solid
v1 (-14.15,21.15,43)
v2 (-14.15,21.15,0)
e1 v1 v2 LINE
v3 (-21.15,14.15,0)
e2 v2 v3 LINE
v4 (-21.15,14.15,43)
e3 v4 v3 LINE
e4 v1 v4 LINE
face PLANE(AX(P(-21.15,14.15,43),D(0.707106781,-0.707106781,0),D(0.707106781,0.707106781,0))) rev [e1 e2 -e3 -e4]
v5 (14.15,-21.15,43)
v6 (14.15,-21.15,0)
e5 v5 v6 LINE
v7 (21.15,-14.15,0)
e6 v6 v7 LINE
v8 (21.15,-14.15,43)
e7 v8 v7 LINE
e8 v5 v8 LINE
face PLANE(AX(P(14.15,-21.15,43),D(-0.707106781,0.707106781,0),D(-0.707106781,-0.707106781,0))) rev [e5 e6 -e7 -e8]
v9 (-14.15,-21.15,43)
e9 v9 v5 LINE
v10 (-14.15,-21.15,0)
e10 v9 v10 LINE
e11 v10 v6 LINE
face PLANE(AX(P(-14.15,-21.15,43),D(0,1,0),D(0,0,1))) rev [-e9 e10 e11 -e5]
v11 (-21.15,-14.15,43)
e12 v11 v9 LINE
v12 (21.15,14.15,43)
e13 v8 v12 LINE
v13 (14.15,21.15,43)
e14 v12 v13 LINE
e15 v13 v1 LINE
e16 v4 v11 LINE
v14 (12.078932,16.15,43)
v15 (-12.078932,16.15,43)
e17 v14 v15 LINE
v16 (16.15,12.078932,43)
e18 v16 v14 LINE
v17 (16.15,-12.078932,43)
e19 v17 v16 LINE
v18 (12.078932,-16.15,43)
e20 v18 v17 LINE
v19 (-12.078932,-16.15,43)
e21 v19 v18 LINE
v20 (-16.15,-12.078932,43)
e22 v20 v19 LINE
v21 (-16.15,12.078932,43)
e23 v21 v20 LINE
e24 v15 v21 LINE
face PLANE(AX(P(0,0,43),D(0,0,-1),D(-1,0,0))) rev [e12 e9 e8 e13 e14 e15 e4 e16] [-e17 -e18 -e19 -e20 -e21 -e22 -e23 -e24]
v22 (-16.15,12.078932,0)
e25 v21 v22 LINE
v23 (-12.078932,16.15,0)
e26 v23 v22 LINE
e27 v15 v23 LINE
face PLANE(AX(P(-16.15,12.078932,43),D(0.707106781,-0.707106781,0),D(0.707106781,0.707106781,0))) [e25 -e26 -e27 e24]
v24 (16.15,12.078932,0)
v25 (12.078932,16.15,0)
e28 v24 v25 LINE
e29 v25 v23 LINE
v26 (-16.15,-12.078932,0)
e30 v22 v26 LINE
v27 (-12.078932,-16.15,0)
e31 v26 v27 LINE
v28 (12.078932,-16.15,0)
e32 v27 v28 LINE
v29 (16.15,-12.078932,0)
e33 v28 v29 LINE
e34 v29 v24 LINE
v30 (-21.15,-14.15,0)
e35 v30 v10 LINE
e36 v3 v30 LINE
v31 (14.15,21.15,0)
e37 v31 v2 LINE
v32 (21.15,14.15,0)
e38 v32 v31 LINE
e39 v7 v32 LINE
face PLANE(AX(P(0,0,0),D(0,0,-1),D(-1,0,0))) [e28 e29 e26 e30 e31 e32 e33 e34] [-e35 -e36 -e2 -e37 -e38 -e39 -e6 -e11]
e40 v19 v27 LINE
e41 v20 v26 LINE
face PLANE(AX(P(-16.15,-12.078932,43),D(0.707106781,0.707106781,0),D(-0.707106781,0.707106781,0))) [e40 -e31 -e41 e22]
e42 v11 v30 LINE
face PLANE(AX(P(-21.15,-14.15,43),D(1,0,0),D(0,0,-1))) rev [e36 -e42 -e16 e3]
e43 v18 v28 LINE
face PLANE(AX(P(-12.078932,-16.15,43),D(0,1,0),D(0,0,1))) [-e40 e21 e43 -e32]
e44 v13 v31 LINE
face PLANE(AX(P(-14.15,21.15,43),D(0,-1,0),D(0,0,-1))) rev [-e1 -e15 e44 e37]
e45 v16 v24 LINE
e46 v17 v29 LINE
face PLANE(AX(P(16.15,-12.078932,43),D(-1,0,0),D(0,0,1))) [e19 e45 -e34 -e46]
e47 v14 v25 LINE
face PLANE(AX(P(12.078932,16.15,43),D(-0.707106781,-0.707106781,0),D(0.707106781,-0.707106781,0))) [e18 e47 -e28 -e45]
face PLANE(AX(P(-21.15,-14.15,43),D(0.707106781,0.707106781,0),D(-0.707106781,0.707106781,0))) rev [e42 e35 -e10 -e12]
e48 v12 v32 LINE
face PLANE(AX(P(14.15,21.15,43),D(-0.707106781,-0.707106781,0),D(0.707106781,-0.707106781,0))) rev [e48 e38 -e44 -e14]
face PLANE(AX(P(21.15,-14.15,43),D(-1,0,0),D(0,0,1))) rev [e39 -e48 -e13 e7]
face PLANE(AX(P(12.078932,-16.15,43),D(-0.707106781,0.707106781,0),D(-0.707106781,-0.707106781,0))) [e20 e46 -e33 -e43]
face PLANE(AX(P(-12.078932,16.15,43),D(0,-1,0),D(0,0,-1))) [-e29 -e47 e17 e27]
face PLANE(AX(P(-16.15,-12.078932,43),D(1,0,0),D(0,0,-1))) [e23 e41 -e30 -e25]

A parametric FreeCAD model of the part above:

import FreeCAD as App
import Part
import Sketcher
Q = App.Units.Quantity


def add_polygon(sketch, points):
    """Adds a closed chain of lines whose ends are joined by coincident constraints."""
    first, n = sketch.GeometryCount, len(points)
    for a, b in zip(points, points[1:] + points[:1]):
        sketch.addGeometry(Part.LineSegment(App.Vector(*a, 0), App.Vector(*b, 0)), False)
    for i in range(n):
        sketch.addConstraint(Sketcher.Constraint("Coincident", first + i, 2, first + (i + 1) % n, 1))

doc = App.newDocument("Part")
body = doc.addObject("PartDesign::Body", "Body")

sketch1 = body.newObject("Sketcher::SketchObject", "Sketch")
sketch1.AttachmentSupport = (doc.getObject("XY_Plane"), [""])
sketch1.MapMode = "FlatFace"
add_polygon(sketch1, [(-14, 21), (-21, 14), (-21, -14), (-14, -21), (14, -21), (21, -14), (21, 14), (14, 21)])
add_polygon(sketch1, [(-12, 16), (12, 16), (16, 12), (16, -12), (12, -16), (-12, -16), (-16, -12), (-16, 12)])
sketch1.addConstraint(Sketcher.Constraint("Vertical", 1))
sketch1.addConstraint(Sketcher.Constraint("Horizontal", 3))
sketch1.addConstraint(Sketcher.Constraint("Vertical", 5))
sketch1.addConstraint(Sketcher.Constraint("Horizontal", 7))
sketch1.addConstraint(Sketcher.Constraint("Horizontal", 8))
sketch1.addConstraint(Sketcher.Constraint("Vertical", 10))
sketch1.addConstraint(Sketcher.Constraint("Horizontal", 12))
sketch1.addConstraint(Sketcher.Constraint("Vertical", 14))
sketch1.addConstraint(Sketcher.Constraint("Symmetric", 0, 2, 4, 2, -1, 1))
sketch1.addConstraint(Sketcher.Constraint("Symmetric", 2, 2, 6, 2, -1, 1))
sketch1.addConstraint(Sketcher.Constraint("Symmetric", 8, 2, 12, 2, -1, 1))
sketch1.addConstraint(Sketcher.Constraint("Symmetric", 9, 2, 13, 2, -1, 1))
sketch1.addConstraint(Sketcher.Constraint("Perpendicular", 0, 2))
sketch1.addConstraint(Sketcher.Constraint("Perpendicular", 2, 4))
sketch1.addConstraint(Sketcher.Constraint("Perpendicular", 4, 6))
sketch1.addConstraint(Sketcher.Constraint("Parallel", 6, 9))
sketch1.addConstraint(Sketcher.Constraint("Perpendicular", 9, 11))
sketch1.addConstraint(Sketcher.Constraint("Perpendicular", 13, 15))
sketch1.addConstraint(Sketcher.Constraint("Horizontal", 1, 2, 4, 2))
sketch1.addConstraint(Sketcher.Constraint("Horizontal", 10, 2, 13, 2))
sketch1.addConstraint(Sketcher.Constraint("Horizontal", 9, 2, 14, 2))
sketch1.addConstraint(Sketcher.Constraint("Vertical", 3, 2, 6, 2))
sketch1.addConstraint(Sketcher.Constraint("Equal", 7, 1))
sketch1.addConstraint(Sketcher.Constraint("Equal", 12, 10))
sketch1.addConstraint(Sketcher.Constraint("DistanceX", 3, 1, 3, 2, Q("28.3 mm")))
sketch1.addConstraint(Sketcher.Constraint("DistanceX", 1, 2, 2, 2, Q("7 mm")))
sketch1.addConstraint(Sketcher.Constraint("DistanceY", 8, 2, 6, 2, Q("5 mm")))
sketch1.addConstraint(Sketcher.Constraint("Distance", 9, Q("5.757359 mm")))
pad1 = body.newObject("PartDesign::Pad", "Pad")
pad1.Profile = sketch1
pad1.Length = 43

doc.recompute()
